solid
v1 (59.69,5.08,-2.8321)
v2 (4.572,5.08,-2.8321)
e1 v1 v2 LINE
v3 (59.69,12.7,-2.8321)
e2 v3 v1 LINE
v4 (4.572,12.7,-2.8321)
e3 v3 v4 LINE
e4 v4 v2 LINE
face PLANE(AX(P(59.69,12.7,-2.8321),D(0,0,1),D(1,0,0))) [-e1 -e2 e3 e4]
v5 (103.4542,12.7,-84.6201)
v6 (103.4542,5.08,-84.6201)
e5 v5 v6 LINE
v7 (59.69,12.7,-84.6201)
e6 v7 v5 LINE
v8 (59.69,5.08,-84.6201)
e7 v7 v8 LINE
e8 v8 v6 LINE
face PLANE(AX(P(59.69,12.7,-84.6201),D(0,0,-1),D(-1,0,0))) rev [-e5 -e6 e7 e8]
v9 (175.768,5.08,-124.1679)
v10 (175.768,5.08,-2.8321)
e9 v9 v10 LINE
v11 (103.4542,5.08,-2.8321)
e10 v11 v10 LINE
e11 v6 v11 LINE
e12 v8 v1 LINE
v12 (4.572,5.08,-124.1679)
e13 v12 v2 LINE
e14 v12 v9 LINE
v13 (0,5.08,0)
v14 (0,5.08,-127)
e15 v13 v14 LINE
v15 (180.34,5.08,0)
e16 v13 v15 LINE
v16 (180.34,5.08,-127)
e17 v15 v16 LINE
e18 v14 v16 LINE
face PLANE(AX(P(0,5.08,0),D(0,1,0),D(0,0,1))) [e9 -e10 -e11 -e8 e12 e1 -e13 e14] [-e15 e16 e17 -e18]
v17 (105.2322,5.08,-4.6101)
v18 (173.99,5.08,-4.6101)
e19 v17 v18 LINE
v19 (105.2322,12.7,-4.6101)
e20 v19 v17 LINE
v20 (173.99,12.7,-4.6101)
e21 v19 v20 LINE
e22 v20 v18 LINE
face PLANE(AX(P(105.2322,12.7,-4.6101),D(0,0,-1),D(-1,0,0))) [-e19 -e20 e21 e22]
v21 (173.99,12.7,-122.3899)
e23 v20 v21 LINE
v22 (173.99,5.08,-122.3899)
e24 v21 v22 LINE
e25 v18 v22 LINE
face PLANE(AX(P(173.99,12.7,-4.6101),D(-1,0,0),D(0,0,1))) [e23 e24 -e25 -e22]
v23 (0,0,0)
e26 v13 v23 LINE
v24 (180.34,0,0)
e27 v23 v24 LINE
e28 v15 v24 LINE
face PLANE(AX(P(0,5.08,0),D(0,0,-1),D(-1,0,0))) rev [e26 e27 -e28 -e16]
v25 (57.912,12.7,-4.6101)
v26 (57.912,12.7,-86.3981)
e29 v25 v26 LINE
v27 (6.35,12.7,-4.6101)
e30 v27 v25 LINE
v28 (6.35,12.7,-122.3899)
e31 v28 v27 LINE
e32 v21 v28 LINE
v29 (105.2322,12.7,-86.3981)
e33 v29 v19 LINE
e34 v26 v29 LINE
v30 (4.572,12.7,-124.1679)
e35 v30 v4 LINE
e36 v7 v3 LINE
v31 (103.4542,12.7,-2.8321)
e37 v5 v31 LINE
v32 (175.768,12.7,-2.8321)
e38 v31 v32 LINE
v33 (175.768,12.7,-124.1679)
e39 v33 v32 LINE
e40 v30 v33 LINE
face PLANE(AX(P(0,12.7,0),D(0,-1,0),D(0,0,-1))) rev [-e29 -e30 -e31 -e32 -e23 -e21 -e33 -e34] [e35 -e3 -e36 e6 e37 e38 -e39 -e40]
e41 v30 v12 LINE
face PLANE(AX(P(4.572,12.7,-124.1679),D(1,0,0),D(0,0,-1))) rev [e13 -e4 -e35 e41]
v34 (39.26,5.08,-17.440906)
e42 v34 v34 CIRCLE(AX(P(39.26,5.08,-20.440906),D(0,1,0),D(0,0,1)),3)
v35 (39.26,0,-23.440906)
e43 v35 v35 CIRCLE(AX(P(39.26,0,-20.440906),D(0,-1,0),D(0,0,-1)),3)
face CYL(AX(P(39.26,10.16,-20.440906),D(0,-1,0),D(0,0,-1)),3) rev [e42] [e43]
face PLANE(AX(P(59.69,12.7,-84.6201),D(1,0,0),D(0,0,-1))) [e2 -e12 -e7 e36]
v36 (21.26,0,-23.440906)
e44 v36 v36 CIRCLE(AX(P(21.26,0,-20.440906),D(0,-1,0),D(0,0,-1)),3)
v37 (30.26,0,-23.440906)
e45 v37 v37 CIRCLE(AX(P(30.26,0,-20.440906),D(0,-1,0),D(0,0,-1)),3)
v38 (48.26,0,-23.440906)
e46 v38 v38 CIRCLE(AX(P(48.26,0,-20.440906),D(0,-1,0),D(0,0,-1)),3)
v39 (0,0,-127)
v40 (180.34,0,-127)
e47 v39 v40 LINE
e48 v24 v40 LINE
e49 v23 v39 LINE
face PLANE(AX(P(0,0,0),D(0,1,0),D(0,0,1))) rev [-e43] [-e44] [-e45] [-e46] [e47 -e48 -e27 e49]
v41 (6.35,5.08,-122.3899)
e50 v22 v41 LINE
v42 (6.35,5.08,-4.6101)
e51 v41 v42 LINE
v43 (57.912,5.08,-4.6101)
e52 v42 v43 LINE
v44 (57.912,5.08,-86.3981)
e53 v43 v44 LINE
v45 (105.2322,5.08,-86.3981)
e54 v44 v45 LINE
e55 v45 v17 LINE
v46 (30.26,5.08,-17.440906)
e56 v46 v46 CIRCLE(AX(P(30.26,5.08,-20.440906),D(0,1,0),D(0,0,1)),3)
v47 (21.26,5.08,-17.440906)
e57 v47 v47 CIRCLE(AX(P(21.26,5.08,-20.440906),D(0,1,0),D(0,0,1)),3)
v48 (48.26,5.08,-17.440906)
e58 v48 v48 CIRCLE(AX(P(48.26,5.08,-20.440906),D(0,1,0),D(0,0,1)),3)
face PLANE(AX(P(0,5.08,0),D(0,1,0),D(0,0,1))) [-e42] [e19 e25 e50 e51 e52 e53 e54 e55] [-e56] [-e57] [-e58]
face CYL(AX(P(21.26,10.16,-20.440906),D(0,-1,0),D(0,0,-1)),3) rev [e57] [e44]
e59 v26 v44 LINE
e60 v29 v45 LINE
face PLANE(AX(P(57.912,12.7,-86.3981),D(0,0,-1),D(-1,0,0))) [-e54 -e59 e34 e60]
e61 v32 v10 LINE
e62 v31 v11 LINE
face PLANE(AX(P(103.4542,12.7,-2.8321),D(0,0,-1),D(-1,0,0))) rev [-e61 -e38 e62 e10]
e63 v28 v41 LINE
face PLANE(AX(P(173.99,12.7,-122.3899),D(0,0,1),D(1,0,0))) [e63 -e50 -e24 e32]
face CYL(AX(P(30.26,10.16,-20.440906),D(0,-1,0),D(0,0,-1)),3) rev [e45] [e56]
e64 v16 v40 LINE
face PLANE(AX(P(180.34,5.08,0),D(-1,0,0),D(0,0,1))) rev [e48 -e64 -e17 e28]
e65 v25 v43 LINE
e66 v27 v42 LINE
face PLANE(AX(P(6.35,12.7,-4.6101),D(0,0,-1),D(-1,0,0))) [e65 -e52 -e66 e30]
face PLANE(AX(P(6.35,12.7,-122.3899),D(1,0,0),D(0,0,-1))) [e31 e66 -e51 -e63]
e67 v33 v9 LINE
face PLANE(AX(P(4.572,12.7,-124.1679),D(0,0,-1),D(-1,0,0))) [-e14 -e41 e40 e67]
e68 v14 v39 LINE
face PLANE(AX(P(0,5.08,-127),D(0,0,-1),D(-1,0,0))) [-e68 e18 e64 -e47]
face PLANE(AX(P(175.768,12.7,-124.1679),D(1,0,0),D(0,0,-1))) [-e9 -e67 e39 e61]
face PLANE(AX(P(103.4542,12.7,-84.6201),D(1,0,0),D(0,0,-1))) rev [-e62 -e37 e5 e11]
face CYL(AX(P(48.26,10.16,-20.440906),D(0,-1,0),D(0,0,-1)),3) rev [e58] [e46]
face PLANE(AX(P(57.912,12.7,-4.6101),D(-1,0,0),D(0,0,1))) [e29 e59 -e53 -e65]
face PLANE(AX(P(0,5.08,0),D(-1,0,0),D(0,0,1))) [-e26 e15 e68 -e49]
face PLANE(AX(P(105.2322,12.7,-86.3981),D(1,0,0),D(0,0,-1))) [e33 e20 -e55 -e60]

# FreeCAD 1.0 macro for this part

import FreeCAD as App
import Part
import Sketcher
Q = App.Units.Quantity

doc = App.newDocument("Part")
body = doc.addObject("PartDesign::Body", "Body")

# Sketch on XZ plane
sketch1 = body.newObject("Sketcher::SketchObject", "Sketch")
sketch1.AttachmentSupport = (doc.getObject("XZ_Plane"), [""])
sketch1.MapMode = "FlatFace"
sketch1.addGeometry(Part.LineSegment(App.Vector(0, -127, 0), App.Vector(0, 0, 0)), False)
sketch1.addGeometry(Part.LineSegment(App.Vector(0, 0, 0), App.Vector(180, 0, 0)), False)
sketch1.addGeometry(Part.LineSegment(App.Vector(180, 0, 0), App.Vector(180, -127, 0)), False)
sketch1.addGeometry(Part.LineSegment(App.Vector(180, -127, 0), App.Vector(0, -127, 0)), False)
sketch1.addConstraint(Sketcher.Constraint("Coincident", 0, 2, 1, 1))
sketch1.addConstraint(Sketcher.Constraint("Coincident", 1, 2, 2, 1))
sketch1.addConstraint(Sketcher.Constraint("Coincident", 2, 2, 3, 1))
sketch1.addConstraint(Sketcher.Constraint("Coincident", 3, 2, 0, 1))
sketch1.addConstraint(Sketcher.Constraint("Vertical", 0))
sketch1.addConstraint(Sketcher.Constraint("Horizontal", 1))
sketch1.addConstraint(Sketcher.Constraint("Vertical", 2))
sketch1.addConstraint(Sketcher.Constraint("Horizontal", 3))
sketch1.addConstraint(Sketcher.Constraint("Coincident", 0, 2, -1, 1))
sketch1.addConstraint(Sketcher.Constraint("DistanceY", 0, 1, 0, 2, Q("5 in")))
sketch1.addConstraint(Sketcher.Constraint("DistanceX", 1, 1, 1, 2, Q("7.1 in")))
pad1 = body.newObject("PartDesign::Pad", "Pad")
pad1.Profile = sketch1
pad1.Length = Q("0.2 in")
pad1.Reversed = True

# Sketch on XZ plane
sketch2 = body.newObject("Sketcher::SketchObject", "Sketch001")
sketch2.AttachmentSupport = (doc.getObject("XZ_Plane"), [""])
sketch2.MapMode = "FlatFace"
sketch2.AttachmentOffset = App.Placement(App.Vector(0, 0, -0.2 * 25.4), App.Rotation())
sketch2.addGeometry(Part.LineSegment(App.Vector(176, -124, 0), App.Vector(5, -124, 0)), False)
sketch2.addGeometry(Part.LineSegment(App.Vector(5, -124, 0), App.Vector(5, -3, 0)), False)
sketch2.addGeometry(Part.LineSegment(App.Vector(5, -3, 0), App.Vector(60, -3, 0)), False)
sketch2.addGeometry(Part.LineSegment(App.Vector(60, -3, 0), App.Vector(60, -85, 0)), False)
sketch2.addGeometry(Part.LineSegment(App.Vector(60, -85, 0), App.Vector(103, -85, 0)), False)
sketch2.addGeometry(Part.LineSegment(App.Vector(103, -85, 0), App.Vector(103, -3, 0)), False)
sketch2.addGeometry(Part.LineSegment(App.Vector(103, -3, 0), App.Vector(176, -3, 0)), False)
sketch2.addGeometry(Part.LineSegment(App.Vector(176, -3, 0), App.Vector(176, -124, 0)), False)
sketch2.addGeometry(Part.LineSegment(App.Vector(6, -122, 0), App.Vector(174, -122, 0)), False)
sketch2.addGeometry(Part.LineSegment(App.Vector(174, -122, 0), App.Vector(174, -5, 0)), False)
sketch2.addGeometry(Part.LineSegment(App.Vector(174, -5, 0), App.Vector(105, -5, 0)), False)
sketch2.addGeometry(Part.LineSegment(App.Vector(105, -5, 0), App.Vector(105, -86, 0)), False)
sketch2.addGeometry(Part.LineSegment(App.Vector(105, -86, 0), App.Vector(58, -86, 0)), False)
sketch2.addGeometry(Part.LineSegment(App.Vector(58, -86, 0), App.Vector(58, -5, 0)), False)
sketch2.addGeometry(Part.LineSegment(App.Vector(58, -5, 0), App.Vector(6, -5, 0)), False)
sketch2.addGeometry(Part.LineSegment(App.Vector(6, -5, 0), App.Vector(6, -122, 0)), False)
sketch2.addConstraint(Sketcher.Constraint("Coincident", 0, 2, 1, 1))
sketch2.addConstraint(Sketcher.Constraint("Coincident", 1, 2, 2, 1))
sketch2.addConstraint(Sketcher.Constraint("Coincident", 2, 2, 3, 1))
sketch2.addConstraint(Sketcher.Constraint("Coincident", 3, 2, 4, 1))
sketch2.addConstraint(Sketcher.Constraint("Coincident", 4, 2, 5, 1))
sketch2.addConstraint(Sketcher.Constraint("Coincident", 5, 2, 6, 1))
sketch2.addConstraint(Sketcher.Constraint("Coincident", 6, 2, 7, 1))
sketch2.addConstraint(Sketcher.Constraint("Coincident", 7, 2, 0, 1))
sketch2.addConstraint(Sketcher.Constraint("Coincident", 8, 2, 9, 1))
sketch2.addConstraint(Sketcher.Constraint("Coincident", 9, 2, 10, 1))
sketch2.addConstraint(Sketcher.Constraint("Coincident", 10, 2, 11, 1))
sketch2.addConstraint(Sketcher.Constraint("Coincident", 11, 2, 12, 1))
sketch2.addConstraint(Sketcher.Constraint("Coincident", 12, 2, 13, 1))
sketch2.addConstraint(Sketcher.Constraint("Coincident", 13, 2, 14, 1))
sketch2.addConstraint(Sketcher.Constraint("Coincident", 14, 2, 15, 1))
sketch2.addConstraint(Sketcher.Constraint("Coincident", 15, 2, 8, 1))
sketch2.addConstraint(Sketcher.Constraint("Horizontal", 0))
sketch2.addConstraint(Sketcher.Constraint("Vertical", 1))
sketch2.addConstraint(Sketcher.Constraint("Horizontal", 2))
sketch2.addConstraint(Sketcher.Constraint("Vertical", 3))
sketch2.addConstraint(Sketcher.Constraint("Horizontal", 4))
sketch2.addConstraint(Sketcher.Constraint("Vertical", 5))
sketch2.addConstraint(Sketcher.Constraint("Horizontal", 6))
sketch2.addConstraint(Sketcher.Constraint("Vertical", 7))
sketch2.addConstraint(Sketcher.Constraint("Horizontal", 8))
sketch2.addConstraint(Sketcher.Constraint("Vertical", 9))
sketch2.addConstraint(Sketcher.Constraint("Horizontal", 10))
sketch2.addConstraint(Sketcher.Constraint("Vertical", 11))
sketch2.addConstraint(Sketcher.Constraint("Horizontal", 12))
sketch2.addConstraint(Sketcher.Constraint("Vertical", 13))
sketch2.addConstraint(Sketcher.Constraint("Horizontal", 14))
sketch2.addConstraint(Sketcher.Constraint("Vertical", 15))
sketch2.addConstraint(Sketcher.Constraint("Horizontal", 2, 2, 5, 2))
sketch2.addConstraint(Sketcher.Constraint("Horizontal", 10, 2, 13, 2))
sketch2.addConstraint(Sketcher.Constraint("Equal", 5, 11))
sketch2.addConstraint(Sketcher.Constraint("DistanceX", 8, 1, 8, 2, Q("6.6 in")))
sketch2.addConstraint(Sketcher.Constraint("DistanceX", 0, 2, 0, 1, Q("6.74 in")))
sketch2.addConstraint(Sketcher.Constraint("DistanceX", 2, 1, 2, 2, Q("2.17 in")))
sketch2.addConstraint(Sketcher.Constraint("DistanceX", 14, 2, 14, 1, Q("2.03 in")))
sketch2.addConstraint(Sketcher.Constraint("DistanceY", 3, 2, 3, 1, Q("3.22 in")))
sketch2.addConstraint(Sketcher.Constraint("DistanceX", 3, 2, 8, 2, Q("4.5 in")))
sketch2.addConstraint(Sketcher.Constraint("DistanceX", 4, 1, 4, 2, Q("1.723 in")))
sketch2.addConstraint(Sketcher.Constraint("DistanceX", 10, 2, 10, 1, Q("2.707 in")))
sketch2.addConstraint(Sketcher.Constraint("DistanceY", 1, 1, 1, 2, Q("4.777 in")))
sketch2.addConstraint(Sketcher.Constraint("DistanceY", 9, 1, 9, 2, Q("4.637 in")))
sketch2.addConstraint(Sketcher.Constraint("DistanceX", -1, 1, 0, 2, Q("0.18 in")))
sketch2.addConstraint(Sketcher.Constraint("DistanceY", 7, 2, 8, 2, Q("0.07 in")))
sketch2.addConstraint(Sketcher.Constraint("DistanceY", 0, 2, -1, 1, Q("4.8885 in")))
pad2 = body.newObject("PartDesign::Pad", "Pad001")
pad2.Profile = sketch2
pad2.Length = Q("0.3 in")
pad2.Reversed = True

# Sketch on XZ plane
sketch3 = body.newObject("Sketcher::SketchObject", "Sketch002")
sketch3.AttachmentSupport = (doc.getObject("XZ_Plane"), [""])
sketch3.MapMode = "FlatFace"
sketch3.addGeometry(Part.Circle(App.Vector(21.3, -20.4, 0), App.Vector(0, 0, 1), 3), False)
sketch3.addGeometry(Part.Circle(App.Vector(30.3, -20.4, 0), App.Vector(0, 0, 1), 3), False)
sketch3.addGeometry(Part.Circle(App.Vector(39.3, -20.4, 0), App.Vector(0, 0, 1), 3), False)
sketch3.addGeometry(Part.Circle(App.Vector(48.3, -20.4, 0), App.Vector(0, 0, 1), 3), False)
sketch3.addConstraint(Sketcher.Constraint("Equal", 0, 1))
sketch3.addConstraint(Sketcher.Constraint("Equal", 1, 2))
sketch3.addConstraint(Sketcher.Constraint("Equal", 2, 3))
sketch3.addConstraint(Sketcher.Constraint("Horizontal", 0, 3, 1, 3))
sketch3.addConstraint(Sketcher.Constraint("Horizontal", 1, 3, 2, 3))
sketch3.addConstraint(Sketcher.Constraint("Horizontal", 2, 3, 3, 3))
sketch3.addConstraint(Sketcher.Constraint("DistanceX", -1, 1, 3, 3, Q("1.9 in")))
sketch3.addConstraint(Sketcher.Constraint("Diameter", 0, Q("6 mm")))
sketch3.addConstraint(Sketcher.Constraint("DistanceX", -1, 1, 0, 3, Q("21.26 mm")))
sketch3.addConstraint(Sketcher.Constraint("DistanceX", -1, 1, 1, 3, Q("30.26 mm")))
sketch3.addConstraint(Sketcher.Constraint("DistanceX", -1, 1, 2, 3, Q("39.26 mm")))
sketch3.addConstraint(Sketcher.Constraint("DistanceY", 0, 3, -1, 1, Q("20.440906 mm")))
pocket1 = body.newObject("PartDesign::Pocket", "Pocket")
pocket1.Profile = sketch3
pocket1.Length = Q("0.4 in")

doc.recompute()
